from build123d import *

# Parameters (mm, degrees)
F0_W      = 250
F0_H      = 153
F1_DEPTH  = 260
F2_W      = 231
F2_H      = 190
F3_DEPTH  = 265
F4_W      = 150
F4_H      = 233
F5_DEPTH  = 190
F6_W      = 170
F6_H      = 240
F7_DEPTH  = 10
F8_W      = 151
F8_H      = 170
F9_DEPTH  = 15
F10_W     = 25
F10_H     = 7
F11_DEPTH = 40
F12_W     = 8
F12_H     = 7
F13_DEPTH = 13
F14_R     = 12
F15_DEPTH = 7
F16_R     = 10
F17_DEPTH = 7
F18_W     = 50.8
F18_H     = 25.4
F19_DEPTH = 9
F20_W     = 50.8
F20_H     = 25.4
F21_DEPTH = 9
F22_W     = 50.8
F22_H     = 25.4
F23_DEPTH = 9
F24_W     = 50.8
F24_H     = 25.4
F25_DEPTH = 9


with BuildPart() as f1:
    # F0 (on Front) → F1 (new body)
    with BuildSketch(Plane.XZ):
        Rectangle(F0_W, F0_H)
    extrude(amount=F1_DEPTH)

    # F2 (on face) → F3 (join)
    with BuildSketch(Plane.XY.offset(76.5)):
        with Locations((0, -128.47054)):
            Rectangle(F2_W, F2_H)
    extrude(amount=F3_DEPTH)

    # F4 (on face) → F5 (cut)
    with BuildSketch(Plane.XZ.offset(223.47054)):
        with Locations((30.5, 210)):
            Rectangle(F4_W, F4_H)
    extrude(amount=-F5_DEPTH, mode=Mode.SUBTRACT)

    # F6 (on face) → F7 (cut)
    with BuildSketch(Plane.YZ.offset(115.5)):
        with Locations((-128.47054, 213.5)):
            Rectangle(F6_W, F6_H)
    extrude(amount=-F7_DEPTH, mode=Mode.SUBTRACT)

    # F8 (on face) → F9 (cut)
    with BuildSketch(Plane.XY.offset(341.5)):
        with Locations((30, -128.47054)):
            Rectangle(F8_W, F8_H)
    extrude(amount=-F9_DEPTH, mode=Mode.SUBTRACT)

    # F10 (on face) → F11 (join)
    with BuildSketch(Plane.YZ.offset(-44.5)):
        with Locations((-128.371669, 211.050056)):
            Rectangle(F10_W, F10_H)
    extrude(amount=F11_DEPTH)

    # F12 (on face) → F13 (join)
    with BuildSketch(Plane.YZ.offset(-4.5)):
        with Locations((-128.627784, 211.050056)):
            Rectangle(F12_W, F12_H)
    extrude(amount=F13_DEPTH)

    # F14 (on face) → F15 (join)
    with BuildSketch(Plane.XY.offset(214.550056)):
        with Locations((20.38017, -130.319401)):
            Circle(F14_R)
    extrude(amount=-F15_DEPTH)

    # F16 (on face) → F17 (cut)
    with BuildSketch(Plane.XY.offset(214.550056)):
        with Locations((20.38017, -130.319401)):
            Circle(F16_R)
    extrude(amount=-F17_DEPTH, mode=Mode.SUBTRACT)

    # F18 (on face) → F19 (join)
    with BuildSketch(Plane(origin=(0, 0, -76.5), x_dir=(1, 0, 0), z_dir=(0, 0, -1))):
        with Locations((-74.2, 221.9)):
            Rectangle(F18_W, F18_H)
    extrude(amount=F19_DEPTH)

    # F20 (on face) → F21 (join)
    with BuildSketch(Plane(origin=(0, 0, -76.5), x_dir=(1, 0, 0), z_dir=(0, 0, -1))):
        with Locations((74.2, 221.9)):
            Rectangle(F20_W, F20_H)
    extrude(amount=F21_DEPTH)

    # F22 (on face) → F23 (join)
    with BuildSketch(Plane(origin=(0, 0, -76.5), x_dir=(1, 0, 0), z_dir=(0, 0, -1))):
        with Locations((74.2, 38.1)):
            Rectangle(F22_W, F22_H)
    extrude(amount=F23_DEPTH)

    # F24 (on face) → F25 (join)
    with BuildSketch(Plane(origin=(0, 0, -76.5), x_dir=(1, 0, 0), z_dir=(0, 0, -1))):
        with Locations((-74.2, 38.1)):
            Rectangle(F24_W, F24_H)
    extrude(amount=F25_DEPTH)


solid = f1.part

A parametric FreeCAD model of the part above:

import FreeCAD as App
import Part
import Sketcher

V = App.Vector
Q = App.Units.Quantity

doc = App.newDocument("Part")
body = doc.addObject("PartDesign::Body", "Body")

# Sketch on XZ plane
sketch1 = doc.addObject("Sketcher::SketchObject", "Sketch")
body.addObject(sketch1)
sketch1.AttachmentSupport = (doc.XZ_Plane, [""])
sketch1.MapMode = "FlatFace"
sketch1.addGeometry([
    Part.LineSegment(V(-125, 76, 0), V(-125, -76, 0)),
    Part.LineSegment(V(-125, -76, 0), V(125, -76, 0)),
    Part.LineSegment(V(125, -76, 0), V(125, 76, 0)),
    Part.LineSegment(V(125, 76, 0), V(-125, 76, 0)),
], False)
sketch1.addConstraint([
    Sketcher.Constraint("Coincident", 0, 2, 1, 1),
    Sketcher.Constraint("Coincident", 1, 2, 2, 1),
    Sketcher.Constraint("Coincident", 2, 2, 3, 1),
    Sketcher.Constraint("Coincident", 3, 2, 0, 1),
    Sketcher.Constraint("Vertical", 0),
    Sketcher.Constraint("Horizontal", 1),
    Sketcher.Constraint("Vertical", 2),
    Sketcher.Constraint("Horizontal", 3),
    Sketcher.Constraint("Symmetric", 0, 2, 2, 2, -1, 1),
    Sketcher.Constraint("DistanceX", 1, 1, 1, 2, Q("250 mm")),
    Sketcher.Constraint("DistanceY", 0, 2, 0, 1, Q("153 mm")),
])
pad1 = doc.addObject("PartDesign::Pad", "Pad")
body.addObject(pad1)
pad1.Profile = sketch1
pad1.Length = 260

# Sketch on XY plane
sketch2 = doc.addObject("Sketcher::SketchObject", "Sketch001")
body.addObject(sketch2)
sketch2.AttachmentSupport = (doc.XY_Plane, [""])
sketch2.MapMode = "FlatFace"
sketch2.AttachmentOffset = App.Placement(V(0, 0, 76.5), App.Rotation())
sketch2.addGeometry([
    Part.LineSegment(V(-116, -33, 0), V(-116, -223, 0)),
    Part.LineSegment(V(-116, -223, 0), V(116, -223, 0)),
    Part.LineSegment(V(116, -223, 0), V(116, -33, 0)),
    Part.LineSegment(V(116, -33, 0), V(-116, -33, 0)),
], False)
sketch2.addConstraint([
    Sketcher.Constraint("Coincident", 0, 2, 1, 1),
    Sketcher.Constraint("Coincident", 1, 2, 2, 1),
    Sketcher.Constraint("Coincident", 2, 2, 3, 1),
    Sketcher.Constraint("Coincident", 3, 2, 0, 1),
    Sketcher.Constraint("Vertical", 0),
    Sketcher.Constraint("Horizontal", 1),
    Sketcher.Constraint("Vertical", 2),
    Sketcher.Constraint("Horizontal", 3),
    Sketcher.Constraint("DistanceX", 1, 1, 1, 2, Q("231 mm")),
    Sketcher.Constraint("DistanceY", 0, 2, 0, 1, Q("190 mm")),
    Sketcher.Constraint("DistanceX", 0, 2, -1, 1, Q("115.5 mm")),
    Sketcher.Constraint("DistanceY", 0, 2, -1, 1, Q("223.47054 mm")),
])
pad2 = doc.addObject("PartDesign::Pad", "Pad001")
body.addObject(pad2)
pad2.Profile = sketch2
pad2.Length = 265

# Sketch on XZ plane
sketch3 = doc.addObject("Sketcher::SketchObject", "Sketch002")
body.addObject(sketch3)
sketch3.AttachmentSupport = (doc.XZ_Plane, [""])
sketch3.MapMode = "FlatFace"
sketch3.AttachmentOffset = App.Placement(V(0, 0, 223.47054), App.Rotation())
sketch3.addGeometry([
    Part.LineSegment(V(-44, 326, 0), V(-44, 94, 0)),
    Part.LineSegment(V(-44, 94, 0), V(106, 94, 0)),
    Part.LineSegment(V(106, 94, 0), V(106, 326, 0)),
    Part.LineSegment(V(106, 326, 0), V(-44, 326, 0)),
], False)
sketch3.addConstraint([
    Sketcher.Constraint("Coincident", 0, 2, 1, 1),
    Sketcher.Constraint("Coincident", 1, 2, 2, 1),
    Sketcher.Constraint("Coincident", 2, 2, 3, 1),
    Sketcher.Constraint("Coincident", 3, 2, 0, 1),
    Sketcher.Constraint("Vertical", 0),
    Sketcher.Constraint("Horizontal", 1),
    Sketcher.Constraint("Vertical", 2),
    Sketcher.Constraint("Horizontal", 3),
    Sketcher.Constraint("DistanceX", 1, 1, 1, 2, Q("150 mm")),
    Sketcher.Constraint("DistanceY", 0, 2, 0, 1, Q("233 mm")),
    Sketcher.Constraint("DistanceX", 0, 2, -1, 1, Q("44.5 mm")),
    Sketcher.Constraint("DistanceY", -1, 1, 0, 2, Q("93.5 mm")),
])
pocket1 = doc.addObject("PartDesign::Pocket", "Pocket")
body.addObject(pocket1)
pocket1.Profile = sketch3
pocket1.Length = 190

# Sketch on YZ plane
sketch4 = doc.addObject("Sketcher::SketchObject", "Sketch003")
body.addObject(sketch4)
sketch4.AttachmentSupport = (doc.YZ_Plane, [""])
sketch4.MapMode = "FlatFace"
sketch4.AttachmentOffset = App.Placement(V(0, 0, 115.5), App.Rotation())
sketch4.addGeometry([
    Part.LineSegment(V(-213, 334, 0), V(-213, 94, 0)),
    Part.LineSegment(V(-213, 94, 0), V(-43, 94, 0)),
    Part.LineSegment(V(-43, 94, 0), V(-43, 334, 0)),
    Part.LineSegment(V(-43, 334, 0), V(-213, 334, 0)),
], False)
sketch4.addConstraint([
    Sketcher.Constraint("Coincident", 0, 2, 1, 1),
    Sketcher.Constraint("Coincident", 1, 2, 2, 1),
    Sketcher.Constraint("Coincident", 2, 2, 3, 1),
    Sketcher.Constraint("Coincident", 3, 2, 0, 1),
    Sketcher.Constraint("Vertical", 0),
    Sketcher.Constraint("Horizontal", 1),
    Sketcher.Constraint("Vertical", 2),
    Sketcher.Constraint("Horizontal", 3),
    Sketcher.Constraint("DistanceX", 1, 1, 1, 2, Q("170 mm")),
    Sketcher.Constraint("DistanceY", 0, 2, 0, 1, Q("240 mm")),
    Sketcher.Constraint("DistanceY", -1, 1, 0, 2, Q("93.5 mm")),
    Sketcher.Constraint("DistanceX", 0, 2, -1, 1, Q("213.47054 mm")),
])
pocket2 = doc.addObject("PartDesign::Pocket", "Pocket001")
body.addObject(pocket2)
pocket2.Profile = sketch4
pocket2.Length = 10

# Sketch on XY plane
sketch5 = doc.addObject("Sketcher::SketchObject", "Sketch004")
body.addObject(sketch5)
sketch5.AttachmentSupport = (doc.XY_Plane, [""])
sketch5.MapMode = "FlatFace"
sketch5.AttachmentOffset = App.Placement(V(0, 0, 341.5), App.Rotation())
sketch5.addGeometry([
    Part.LineSegment(V(-46, -43, 0), V(-46, -213, 0)),
    Part.LineSegment(V(-46, -213, 0), V(106, -213, 0)),
    Part.LineSegment(V(106, -213, 0), V(106, -43, 0)),
    Part.LineSegment(V(106, -43, 0), V(-46, -43, 0)),
], False)
sketch5.addConstraint([
    Sketcher.Constraint("Coincident", 0, 2, 1, 1),
    Sketcher.Constraint("Coincident", 1, 2, 2, 1),
    Sketcher.Constraint("Coincident", 2, 2, 3, 1),
    Sketcher.Constraint("Coincident", 3, 2, 0, 1),
    Sketcher.Constraint("Vertical", 0),
    Sketcher.Constraint("Horizontal", 1),
    Sketcher.Constraint("Vertical", 2),
    Sketcher.Constraint("Horizontal", 3),
    Sketcher.Constraint("DistanceX", 1, 1, 1, 2, Q("151 mm")),
    Sketcher.Constraint("DistanceY", 0, 2, 0, 1, Q("170 mm")),
    Sketcher.Constraint("DistanceX", 0, 2, -1, 1, Q("45.5 mm")),
    Sketcher.Constraint("DistanceY", 0, 2, -1, 1, Q("213.47054 mm")),
])
pocket3 = doc.addObject("PartDesign::Pocket", "Pocket002")
body.addObject(pocket3)
pocket3.Profile = sketch5
pocket3.Length = 15

# Sketch on YZ plane
sketch6 = doc.addObject("Sketcher::SketchObject", "Sketch005")
body.addObject(sketch6)
sketch6.AttachmentSupport = (doc.YZ_Plane, [""])
sketch6.MapMode = "FlatFace"
sketch6.AttachmentOffset = App.Placement(V(0, 0, -44.5), App.Rotation())
sketch6.addGeometry([
    Part.LineSegment(V(-141, 215, 0), V(-141, 208, 0)),
    Part.LineSegment(V(-141, 208, 0), V(-116, 208, 0)),
    Part.LineSegment(V(-116, 208, 0), V(-116, 215, 0)),
    Part.LineSegment(V(-116, 215, 0), V(-141, 215, 0)),
], False)
sketch6.addConstraint([
    Sketcher.Constraint("Coincident", 0, 2, 1, 1),
    Sketcher.Constraint("Coincident", 1, 2, 2, 1),
    Sketcher.Constraint("Coincident", 2, 2, 3, 1),
    Sketcher.Constraint("Coincident", 3, 2, 0, 1),
    Sketcher.Constraint("Vertical", 0),
    Sketcher.Constraint("Horizontal", 1),
    Sketcher.Constraint("Vertical", 2),
    Sketcher.Constraint("Horizontal", 3),
    Sketcher.Constraint("DistanceX", 1, 1, 1, 2, Q("25 mm")),
    Sketcher.Constraint("DistanceY", 0, 2, 0, 1, Q("7 mm")),
    Sketcher.Constraint("DistanceX", 0, 2, -1, 1, Q("140.871669 mm")),
    Sketcher.Constraint("DistanceY", -1, 1, 0, 2, Q("207.550056 mm")),
])
pad3 = doc.addObject("PartDesign::Pad", "Pad002")
body.addObject(pad3)
pad3.Profile = sketch6
pad3.Length = 40

# Sketch on YZ plane
sketch7 = doc.addObject("Sketcher::SketchObject", "Sketch006")
body.addObject(sketch7)
sketch7.AttachmentSupport = (doc.YZ_Plane, [""])
sketch7.MapMode = "FlatFace"
sketch7.AttachmentOffset = App.Placement(V(0, 0, -4.5), App.Rotation())
sketch7.addGeometry([
    Part.LineSegment(V(-133, 215, 0), V(-133, 208, 0)),
    Part.LineSegment(V(-133, 208, 0), V(-125, 208, 0)),
    Part.LineSegment(V(-125, 208, 0), V(-125, 215, 0)),
    Part.LineSegment(V(-125, 215, 0), V(-133, 215, 0)),
], False)
sketch7.addConstraint([
    Sketcher.Constraint("Coincident", 0, 2, 1, 1),
    Sketcher.Constraint("Coincident", 1, 2, 2, 1),
    Sketcher.Constraint("Coincident", 2, 2, 3, 1),
    Sketcher.Constraint("Coincident", 3, 2, 0, 1),
    Sketcher.Constraint("Vertical", 0),
    Sketcher.Constraint("Horizontal", 1),
    Sketcher.Constraint("Vertical", 2),
    Sketcher.Constraint("Horizontal", 3),
    Sketcher.Constraint("DistanceX", 1, 1, 1, 2, Q("8 mm")),
    Sketcher.Constraint("DistanceY", 0, 2, 0, 1, Q("7 mm")),
    Sketcher.Constraint("DistanceX", 0, 2, -1, 1, Q("132.627784 mm")),
    Sketcher.Constraint("DistanceY", -1, 1, 0, 2, Q("207.550056 mm")),
])
pad4 = doc.addObject("PartDesign::Pad", "Pad003")
body.addObject(pad4)
pad4.Profile = sketch7
pad4.Length = 13

# Sketch on XY plane
sketch8 = doc.addObject("Sketcher::SketchObject", "Sketch007")
body.addObject(sketch8)
sketch8.AttachmentSupport = (doc.XY_Plane, [""])
sketch8.MapMode = "FlatFace"
sketch8.AttachmentOffset = App.Placement(V(0, 0, 214.550056), App.Rotation())
sketch8.addGeometry(Part.Circle(V(20, -130, 0), V(0, 0, 1), 12), False)
sketch8.addConstraint([
    Sketcher.Constraint("Diameter", 0, Q("24 mm")),
    Sketcher.Constraint("DistanceY", 0, 3, -1, 1, Q("130.319401 mm")),
    Sketcher.Constraint("DistanceX", -1, 1, 0, 3, Q("20.38017 mm")),
])
pad5 = doc.addObject("PartDesign::Pad", "Pad004")
body.addObject(pad5)
pad5.Profile = sketch8
pad5.Length = 7
pad5.Reversed = True

# Sketch on XY plane
sketch9 = doc.addObject("Sketcher::SketchObject", "Sketch008")
body.addObject(sketch9)
sketch9.AttachmentSupport = (doc.XY_Plane, [""])
sketch9.MapMode = "FlatFace"
sketch9.AttachmentOffset = App.Placement(V(0, 0, 214.550056), App.Rotation())
sketch9.addGeometry(Part.Circle(V(20, -130, 0), V(0, 0, 1), 10), False)
sketch9.addConstraint([
    Sketcher.Constraint("Diameter", 0, Q("20 mm")),
    Sketcher.Constraint("DistanceY", 0, 3, -1, 1, Q("130.319401 mm")),
    Sketcher.Constraint("DistanceX", -1, 1, 0, 3, Q("20.38017 mm")),
])
pocket4 = doc.addObject("PartDesign::Pocket", "Pocket003")
body.addObject(pocket4)
pocket4.Profile = sketch9
pocket4.Length = 7

# Sketch on XY plane
sketch10 = doc.addObject("Sketcher::SketchObject", "Sketch009")
body.addObject(sketch10)
sketch10.AttachmentSupport = (doc.XY_Plane, [""])
sketch10.MapMode = "FlatFace"
sketch10.AttachmentOffset = App.Placement(V(0, 0, -76.5), App.Rotation())
sketch10.addGeometry([
    Part.LineSegment(V(-100, -235, 0), V(-100, -209, 0)),
    Part.LineSegment(V(-100, -209, 0), V(-49, -209, 0)),
    Part.LineSegment(V(-49, -209, 0), V(-49, -235, 0)),
    Part.LineSegment(V(-49, -235, 0), V(-100, -235, 0)),
], False)
sketch10.addConstraint([
    Sketcher.Constraint("Coincident", 0, 2, 1, 1),
    Sketcher.Constraint("Coincident", 1, 2, 2, 1),
    Sketcher.Constraint("Coincident", 2, 2, 3, 1),
    Sketcher.Constraint("Coincident", 3, 2, 0, 1),
    Sketcher.Constraint("Vertical", 0),
    Sketcher.Constraint("Horizontal", 1),
    Sketcher.Constraint("Vertical", 2),
    Sketcher.Constraint("Horizontal", 3),
    Sketcher.Constraint("DistanceX", 1, 1, 1, 2, Q("50.8 mm")),
    Sketcher.Constraint("DistanceY", 0, 1, 0, 2, Q("25.4 mm")),
    Sketcher.Constraint("DistanceX", 0, 2, -1, 1, Q("99.6 mm")),
    Sketcher.Constraint("DistanceY", 0, 2, -1, 1, Q("209.2 mm")),
])
pad6 = doc.addObject("PartDesign::Pad", "Pad005")
body.addObject(pad6)
pad6.Profile = sketch10
pad6.Length = 9
pad6.Reversed = True

# Sketch on XY plane
sketch11 = doc.addObject("Sketcher::SketchObject", "Sketch010")
body.addObject(sketch11)
sketch11.AttachmentSupport = (doc.XY_Plane, [""])
sketch11.MapMode = "FlatFace"
sketch11.AttachmentOffset = App.Placement(V(0, 0, -76.5), App.Rotation())
sketch11.addGeometry([
    Part.LineSegment(V(49, -235, 0), V(49, -209, 0)),
    Part.LineSegment(V(49, -209, 0), V(100, -209, 0)),
    Part.LineSegment(V(100, -209, 0), V(100, -235, 0)),
    Part.LineSegment(V(100, -235, 0), V(49, -235, 0)),
], False)
sketch11.addConstraint([
    Sketcher.Constraint("Coincident", 0, 2, 1, 1),
    Sketcher.Constraint("Coincident", 1, 2, 2, 1),
    Sketcher.Constraint("Coincident", 2, 2, 3, 1),
    Sketcher.Constraint("Coincident", 3, 2, 0, 1),
    Sketcher.Constraint("Vertical", 0),
    Sketcher.Constraint("Horizontal", 1),
    Sketcher.Constraint("Vertical", 2),
    Sketcher.Constraint("Horizontal", 3),
    Sketcher.Constraint("DistanceX", 1, 1, 1, 2, Q("50.8 mm")),
    Sketcher.Constraint("DistanceY", 0, 1, 0, 2, Q("25.4 mm")),
    Sketcher.Constraint("DistanceX", -1, 1, 0, 2, Q("48.8 mm")),
    Sketcher.Constraint("DistanceY", 0, 2, -1, 1, Q("209.2 mm")),
])
pad7 = doc.addObject("PartDesign::Pad", "Pad006")
body.addObject(pad7)
pad7.Profile = sketch11
pad7.Length = 9
pad7.Reversed = True

# Sketch on XY plane
sketch12 = doc.addObject("Sketcher::SketchObject", "Sketch011")
body.addObject(sketch12)
sketch12.AttachmentSupport = (doc.XY_Plane, [""])
sketch12.MapMode = "FlatFace"
sketch12.AttachmentOffset = App.Placement(V(0, 0, -76.5), App.Rotation())
sketch12.addGeometry([
    Part.LineSegment(V(49, -51, 0), V(49, -25, 0)),
    Part.LineSegment(V(49, -25, 0), V(100, -25, 0)),
    Part.LineSegment(V(100, -25, 0), V(100, -51, 0)),
    Part.LineSegment(V(100, -51, 0), V(49, -51, 0)),
], False)
sketch12.addConstraint([
    Sketcher.Constraint("Coincident", 0, 2, 1, 1),
    Sketcher.Constraint("Coincident", 1, 2, 2, 1),
    Sketcher.Constraint("Coincident", 2, 2, 3, 1),
    Sketcher.Constraint("Coincident", 3, 2, 0, 1),
    Sketcher.Constraint("Vertical", 0),
    Sketcher.Constraint("Horizontal", 1),
    Sketcher.Constraint("Vertical", 2),
    Sketcher.Constraint("Horizontal", 3),
    Sketcher.Constraint("DistanceX", 1, 1, 1, 2, Q("50.8 mm")),
    Sketcher.Constraint("DistanceY", 0, 1, 0, 2, Q("25.4 mm")),
    Sketcher.Constraint("DistanceX", -1, 1, 0, 2, Q("48.8 mm")),
    Sketcher.Constraint("DistanceY", 0, 2, -1, 1, Q("25.4 mm")),
])
pad8 = doc.addObject("PartDesign::Pad", "Pad007")
body.addObject(pad8)
pad8.Profile = sketch12
pad8.Length = 9
pad8.Reversed = True

# Sketch on XY plane
sketch13 = doc.addObject("Sketcher::SketchObject", "Sketch012")
body.addObject(sketch13)
sketch13.AttachmentSupport = (doc.XY_Plane, [""])
sketch13.MapMode = "FlatFace"
sketch13.AttachmentOffset = App.Placement(V(0, 0, -76.5), App.Rotation())
sketch13.addGeometry([
    Part.LineSegment(V(-100, -51, 0), V(-100, -25, 0)),
    Part.LineSegment(V(-100, -25, 0), V(-49, -25, 0)),
    Part.LineSegment(V(-49, -25, 0), V(-49, -51, 0)),
    Part.LineSegment(V(-49, -51, 0), V(-100, -51, 0)),
], False)
sketch13.addConstraint([
    Sketcher.Constraint("Coincident", 0, 2, 1, 1),
    Sketcher.Constraint("Coincident", 1, 2, 2, 1),
    Sketcher.Constraint("Coincident", 2, 2, 3, 1),
    Sketcher.Constraint("Coincident", 3, 2, 0, 1),
    Sketcher.Constraint("Vertical", 0),
    Sketcher.Constraint("Horizontal", 1),
    Sketcher.Constraint("Vertical", 2),
    Sketcher.Constraint("Horizontal", 3),
    Sketcher.Constraint("DistanceX", 1, 1, 1, 2, Q("50.8 mm")),
    Sketcher.Constraint("DistanceY", 0, 1, 0, 2, Q("25.4 mm")),
    Sketcher.Constraint("DistanceX", 0, 2, -1, 1, Q("99.6 mm")),
    Sketcher.Constraint("DistanceY", 0, 2, -1, 1, Q("25.4 mm")),
])
pad9 = doc.addObject("PartDesign::Pad", "Pad008")
body.addObject(pad9)
pad9.Profile = sketch13
pad9.Length = 9
pad9.Reversed = True

doc.recompute()
